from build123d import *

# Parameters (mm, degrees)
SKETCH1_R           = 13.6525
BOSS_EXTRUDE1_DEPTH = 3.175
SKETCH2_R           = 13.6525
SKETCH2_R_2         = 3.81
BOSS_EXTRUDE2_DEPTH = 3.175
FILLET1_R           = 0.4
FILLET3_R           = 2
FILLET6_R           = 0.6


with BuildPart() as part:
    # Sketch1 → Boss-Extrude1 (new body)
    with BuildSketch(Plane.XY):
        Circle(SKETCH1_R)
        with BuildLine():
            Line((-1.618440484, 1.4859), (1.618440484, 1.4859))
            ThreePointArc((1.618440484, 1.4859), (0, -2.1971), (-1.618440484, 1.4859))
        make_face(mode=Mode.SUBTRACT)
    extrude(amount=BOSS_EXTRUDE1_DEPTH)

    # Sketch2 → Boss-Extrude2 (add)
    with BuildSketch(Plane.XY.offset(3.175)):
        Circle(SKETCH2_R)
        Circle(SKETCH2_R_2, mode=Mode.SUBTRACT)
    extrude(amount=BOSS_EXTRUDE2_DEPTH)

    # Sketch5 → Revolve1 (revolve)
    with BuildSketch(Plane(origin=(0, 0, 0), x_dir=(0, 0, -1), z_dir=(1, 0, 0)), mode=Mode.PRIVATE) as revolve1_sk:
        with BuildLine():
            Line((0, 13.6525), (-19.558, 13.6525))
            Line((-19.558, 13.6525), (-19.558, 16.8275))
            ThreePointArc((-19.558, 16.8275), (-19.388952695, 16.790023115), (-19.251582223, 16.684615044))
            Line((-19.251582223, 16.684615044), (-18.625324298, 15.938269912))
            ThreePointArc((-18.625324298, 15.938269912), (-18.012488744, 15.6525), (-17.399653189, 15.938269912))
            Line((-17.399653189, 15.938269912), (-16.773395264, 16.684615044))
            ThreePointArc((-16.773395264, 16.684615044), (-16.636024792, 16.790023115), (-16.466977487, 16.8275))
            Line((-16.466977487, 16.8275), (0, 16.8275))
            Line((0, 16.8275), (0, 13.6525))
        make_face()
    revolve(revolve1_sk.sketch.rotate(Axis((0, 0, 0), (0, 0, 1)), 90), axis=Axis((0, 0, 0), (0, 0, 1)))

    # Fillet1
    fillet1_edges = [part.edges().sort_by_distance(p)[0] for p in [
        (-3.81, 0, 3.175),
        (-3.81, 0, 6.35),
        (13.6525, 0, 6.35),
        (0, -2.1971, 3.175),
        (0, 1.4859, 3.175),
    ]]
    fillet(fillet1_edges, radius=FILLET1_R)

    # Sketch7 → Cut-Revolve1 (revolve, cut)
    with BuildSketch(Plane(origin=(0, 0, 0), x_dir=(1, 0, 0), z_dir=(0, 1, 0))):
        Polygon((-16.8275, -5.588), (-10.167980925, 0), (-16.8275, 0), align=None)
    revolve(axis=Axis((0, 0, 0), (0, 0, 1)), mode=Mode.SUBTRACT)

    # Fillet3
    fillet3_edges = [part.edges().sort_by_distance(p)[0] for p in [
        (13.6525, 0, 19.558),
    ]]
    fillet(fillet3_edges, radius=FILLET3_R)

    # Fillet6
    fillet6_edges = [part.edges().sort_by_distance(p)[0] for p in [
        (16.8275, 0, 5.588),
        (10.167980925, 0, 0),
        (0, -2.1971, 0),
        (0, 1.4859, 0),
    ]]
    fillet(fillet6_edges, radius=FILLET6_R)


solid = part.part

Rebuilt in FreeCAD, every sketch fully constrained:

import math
import FreeCAD as App
import Part
import Sketcher
from FreeCAD import Vector
Q = App.Units.Quantity


def edges_at(feature, points):
    """Names of the edges that pass closest to the given points."""
    edges = feature.Shape.Edges
    near = lambda p: min(range(len(edges)), key=lambda i: edges[i].distToShape(Part.Vertex(*p))[0])
    return sorted({f"Edge{near(p) + 1}" for p in points})


def add_polygon(sketch, points):
    """Adds a closed chain of lines whose ends are joined by coincident constraints."""
    first, n = sketch.GeometryCount, len(points)
    for a, b in zip(points, points[1:] + points[:1]):
        sketch.addGeometry(Part.LineSegment(App.Vector(*a, 0), App.Vector(*b, 0)), False)
    for i in range(n):
        sketch.addConstraint(Sketcher.Constraint("Coincident", first + i, 2, first + (i + 1) % n, 1))

doc = App.newDocument("Part")
body = doc.addObject("PartDesign::Body", "Body")

sketch1 = body.newObject("Sketcher::SketchObject", "Sketch")
sketch1.AttachmentSupport = (doc.getObject("XY_Plane"), [""])
sketch1.MapMode = "FlatFace"
sketch1.addGeometry(Part.Circle(Vector(0, 0, 0), Vector(0, 0, 1), 13.6525), False)
sketch1.addGeometry(Part.ArcOfCircle(Part.Circle(Vector(0, 0, 0), Vector(0, 0, 1), 2.1971), math.radians(137.444771), math.radians(402.555229)), False)
sketch1.addGeometry(Part.LineSegment(Vector(-1.61844, 1.4859, 0), Vector(1.61844, 1.4859, 0)), False)
sketch1.addConstraint(Sketcher.Constraint("Coincident", 1, 1, 2, 1))
sketch1.addConstraint(Sketcher.Constraint("Coincident", 2, 2, 1, 2))
sketch1.addConstraint(Sketcher.Constraint("Horizontal", 2))
sketch1.addConstraint(Sketcher.Constraint("Coincident", 0, 3, -1, 1))
sketch1.addConstraint(Sketcher.Constraint("Coincident", 1, 3, -1, 1))
sketch1.addConstraint(Sketcher.Constraint("Diameter", 0, Q("1.075 in")))
sketch1.addConstraint(Sketcher.Constraint("Radius", 1, Q("0.0865 in")))
sketch1.addConstraint(Sketcher.Constraint("DistanceY", -1, 1, 1, 1, Q("0.0585 in")))
pad1 = body.newObject("PartDesign::Pad", "Pad")
pad1.Profile = sketch1
pad1.Length = Q("0.125 in")

sketch2 = body.newObject("Sketcher::SketchObject", "Sketch001")
sketch2.AttachmentSupport = (doc.getObject("XY_Plane"), [""])
sketch2.MapMode = "FlatFace"
sketch2.AttachmentOffset = App.Placement(Vector(0, 0, 0.125 * 25.4), App.Rotation())
sketch2.addGeometry(Part.Circle(Vector(0, 0, 0), Vector(0, 0, 1), 13.6525), False)
sketch2.addGeometry(Part.Circle(Vector(0, 0, 0), Vector(0, 0, 1), 3.81), False)
sketch2.addConstraint(Sketcher.Constraint("Coincident", 0, 3, -1, 1))
sketch2.addConstraint(Sketcher.Constraint("Coincident", 1, 3, -1, 1))
sketch2.addConstraint(Sketcher.Constraint("Diameter", 1, Q("0.3 in")))
sketch2.addConstraint(Sketcher.Constraint("Diameter", 0, Q("1.075 in")))
pad2 = body.newObject("PartDesign::Pad", "Pad001")
pad2.Profile = sketch2
pad2.Length = Q("0.125 in")

sketch3 = body.newObject("Sketcher::SketchObject", "Sketch002")
sketch3.AttachmentSupport = (doc.getObject("YZ_Plane"), [""])
sketch3.MapMode = "FlatFace"
sketch3.addGeometry(Part.LineSegment(Vector(13.6525, 19.558, 0), Vector(13.6525, 0, 0)), False)
sketch3.addGeometry(Part.LineSegment(Vector(13.6525, 0, 0), Vector(16.8275, 0, 0)), False)
sketch3.addGeometry(Part.LineSegment(Vector(16.8275, 0, 0), Vector(16.8275, 16.466977, 0)), False)
sketch3.addGeometry(Part.ArcOfCircle(Part.Circle(Vector(16.4275, 16.466977, 0), Vector(0, 0, 1), 0.4), math.radians(0), math.radians(50)), False)
sketch3.addGeometry(Part.LineSegment(Vector(16.684615, 16.773395, 0), Vector(15.93827, 17.399653, 0)), False)
sketch3.addGeometry(Part.ArcOfCircle(Part.Circle(Vector(16.4525, 18.012489, 0), Vector(0, 0, 1), 0.8), math.radians(130), math.radians(230)), False)
sketch3.addGeometry(Part.LineSegment(Vector(15.93827, 18.625324, 0), Vector(16.684615, 19.251582, 0)), False)
sketch3.addGeometry(Part.ArcOfCircle(Part.Circle(Vector(16.4275, 19.558, 0), Vector(0, 0, 1), 0.4), math.radians(-50), math.radians(0)), False)
sketch3.addGeometry(Part.LineSegment(Vector(16.8275, 19.558, 0), Vector(13.6525, 19.558, 0)), False)
sketch3.addConstraint(Sketcher.Constraint("Coincident", 0, 2, 1, 1))
sketch3.addConstraint(Sketcher.Constraint("Coincident", 1, 2, 2, 1))
sketch3.addConstraint(Sketcher.Constraint("Tangent", 2, 2, 3, 1))
sketch3.addConstraint(Sketcher.Constraint("Tangent", 3, 2, 4, 1))
sketch3.addConstraint(Sketcher.Constraint("Tangent", 4, 2, 5, 2))
sketch3.addConstraint(Sketcher.Constraint("Tangent", 5, 1, 6, 1))
sketch3.addConstraint(Sketcher.Constraint("Tangent", 6, 2, 7, 1))
sketch3.addConstraint(Sketcher.Constraint("Coincident", 7, 2, 8, 1))
sketch3.addConstraint(Sketcher.Constraint("Coincident", 8, 2, 0, 1))
sketch3.addConstraint(Sketcher.Constraint("Vertical", 0))
sketch3.addConstraint(Sketcher.Constraint("Horizontal", 1))
sketch3.addConstraint(Sketcher.Constraint("Vertical", 2))
sketch3.addConstraint(Sketcher.Constraint("Horizontal", 8))
sketch3.addConstraint(Sketcher.Constraint("Equal", 3, 7))
sketch3.addConstraint(Sketcher.Constraint("PointOnObject", 0, 2, -1))
sketch3.addConstraint(Sketcher.Constraint("Vertical", 3, 3, 7, 3))
sketch3.addConstraint(Sketcher.Constraint("Vertical", 4, 2, 5, 1))
sketch3.addConstraint(Sketcher.Constraint("Angle", 4, Q("140 deg")))
sketch3.addConstraint(Sketcher.Constraint("DistanceY", 0, 2, 0, 1, Q("0.77 in")))
sketch3.addConstraint(Sketcher.Constraint("DistanceX", 1, 1, 1, 2, Q("0.125 in")))
sketch3.addConstraint(Sketcher.Constraint("DistanceY", -1, 1, 7, 3, Q("0.77 in")))
sketch3.addConstraint(Sketcher.Constraint("Radius", 3, Q("0.4 mm")))
sketch3.addConstraint(Sketcher.Constraint("Radius", 5, Q("0.8 mm")))
sketch3.addConstraint(Sketcher.Constraint("DistanceX", -1, 1, 0, 2, Q("0.5375 in")))
sketch3.addConstraint(Sketcher.Constraint("DistanceX", -1, 1, 5, 3, Q("16.4525 mm")))
revolution = body.newObject("PartDesign::Revolution", "Revolution")
revolution.Profile = sketch3
revolution.ReferenceAxis = (sketch3, ["V_Axis"])
revolution.Angle = 360
doc.recompute()

fillet = body.newObject("PartDesign::Fillet", "Fillet")
fillet.Base = (revolution, edges_at(revolution, [
    (-3.81, 0, 3.175),
    (-3.81, 0, 6.35),
    (13.652, 0, 6.35),
    (0, -2.197, 3.175),
    (0, 1.486, 3.175),
]))
fillet.Radius = 0.4

sketch4 = body.newObject("Sketcher::SketchObject", "Sketch003")
sketch4.AttachmentSupport = (doc.getObject("XZ_Plane"), [""])
sketch4.MapMode = "FlatFace"
add_polygon(sketch4, [(-16.8275, 5.588), (-10.167981, 0), (-16.8275, 0)])
sketch4.addConstraint(Sketcher.Constraint("Horizontal", 1))
sketch4.addConstraint(Sketcher.Constraint("Vertical", 2))
sketch4.addConstraint(Sketcher.Constraint("PointOnObject", 0, 2, -1))
sketch4.addConstraint(Sketcher.Constraint("Angle", 0, Q("-40 deg")))
sketch4.addConstraint(Sketcher.Constraint("DistanceY", 2, 1, 2, 2, Q("0.22 in")))
sketch4.addConstraint(Sketcher.Constraint("DistanceX", 1, 2, -1, 1, Q("0.6625 in")))
groove = body.newObject("PartDesign::Groove", "Groove")
groove.Profile = sketch4
groove.ReferenceAxis = (sketch4, ["V_Axis"])
groove.Angle = 360
doc.recompute()

fillet2 = body.newObject("PartDesign::Fillet", "Fillet001")
fillet2.Base = (groove, edges_at(groove, [(13.652, 0, 19.558)]))
fillet2.Radius = 2
doc.recompute()

fillet3 = body.newObject("PartDesign::Fillet", "Fillet002")
fillet3.Base = (fillet2, edges_at(fillet2, [
    (16.828, 0, 5.588),
    (10.168, 0, 0),
    (0, -2.197, 0),
    (0, 1.486, 0),
]))
fillet3.Radius = 0.6

doc.recompute()
